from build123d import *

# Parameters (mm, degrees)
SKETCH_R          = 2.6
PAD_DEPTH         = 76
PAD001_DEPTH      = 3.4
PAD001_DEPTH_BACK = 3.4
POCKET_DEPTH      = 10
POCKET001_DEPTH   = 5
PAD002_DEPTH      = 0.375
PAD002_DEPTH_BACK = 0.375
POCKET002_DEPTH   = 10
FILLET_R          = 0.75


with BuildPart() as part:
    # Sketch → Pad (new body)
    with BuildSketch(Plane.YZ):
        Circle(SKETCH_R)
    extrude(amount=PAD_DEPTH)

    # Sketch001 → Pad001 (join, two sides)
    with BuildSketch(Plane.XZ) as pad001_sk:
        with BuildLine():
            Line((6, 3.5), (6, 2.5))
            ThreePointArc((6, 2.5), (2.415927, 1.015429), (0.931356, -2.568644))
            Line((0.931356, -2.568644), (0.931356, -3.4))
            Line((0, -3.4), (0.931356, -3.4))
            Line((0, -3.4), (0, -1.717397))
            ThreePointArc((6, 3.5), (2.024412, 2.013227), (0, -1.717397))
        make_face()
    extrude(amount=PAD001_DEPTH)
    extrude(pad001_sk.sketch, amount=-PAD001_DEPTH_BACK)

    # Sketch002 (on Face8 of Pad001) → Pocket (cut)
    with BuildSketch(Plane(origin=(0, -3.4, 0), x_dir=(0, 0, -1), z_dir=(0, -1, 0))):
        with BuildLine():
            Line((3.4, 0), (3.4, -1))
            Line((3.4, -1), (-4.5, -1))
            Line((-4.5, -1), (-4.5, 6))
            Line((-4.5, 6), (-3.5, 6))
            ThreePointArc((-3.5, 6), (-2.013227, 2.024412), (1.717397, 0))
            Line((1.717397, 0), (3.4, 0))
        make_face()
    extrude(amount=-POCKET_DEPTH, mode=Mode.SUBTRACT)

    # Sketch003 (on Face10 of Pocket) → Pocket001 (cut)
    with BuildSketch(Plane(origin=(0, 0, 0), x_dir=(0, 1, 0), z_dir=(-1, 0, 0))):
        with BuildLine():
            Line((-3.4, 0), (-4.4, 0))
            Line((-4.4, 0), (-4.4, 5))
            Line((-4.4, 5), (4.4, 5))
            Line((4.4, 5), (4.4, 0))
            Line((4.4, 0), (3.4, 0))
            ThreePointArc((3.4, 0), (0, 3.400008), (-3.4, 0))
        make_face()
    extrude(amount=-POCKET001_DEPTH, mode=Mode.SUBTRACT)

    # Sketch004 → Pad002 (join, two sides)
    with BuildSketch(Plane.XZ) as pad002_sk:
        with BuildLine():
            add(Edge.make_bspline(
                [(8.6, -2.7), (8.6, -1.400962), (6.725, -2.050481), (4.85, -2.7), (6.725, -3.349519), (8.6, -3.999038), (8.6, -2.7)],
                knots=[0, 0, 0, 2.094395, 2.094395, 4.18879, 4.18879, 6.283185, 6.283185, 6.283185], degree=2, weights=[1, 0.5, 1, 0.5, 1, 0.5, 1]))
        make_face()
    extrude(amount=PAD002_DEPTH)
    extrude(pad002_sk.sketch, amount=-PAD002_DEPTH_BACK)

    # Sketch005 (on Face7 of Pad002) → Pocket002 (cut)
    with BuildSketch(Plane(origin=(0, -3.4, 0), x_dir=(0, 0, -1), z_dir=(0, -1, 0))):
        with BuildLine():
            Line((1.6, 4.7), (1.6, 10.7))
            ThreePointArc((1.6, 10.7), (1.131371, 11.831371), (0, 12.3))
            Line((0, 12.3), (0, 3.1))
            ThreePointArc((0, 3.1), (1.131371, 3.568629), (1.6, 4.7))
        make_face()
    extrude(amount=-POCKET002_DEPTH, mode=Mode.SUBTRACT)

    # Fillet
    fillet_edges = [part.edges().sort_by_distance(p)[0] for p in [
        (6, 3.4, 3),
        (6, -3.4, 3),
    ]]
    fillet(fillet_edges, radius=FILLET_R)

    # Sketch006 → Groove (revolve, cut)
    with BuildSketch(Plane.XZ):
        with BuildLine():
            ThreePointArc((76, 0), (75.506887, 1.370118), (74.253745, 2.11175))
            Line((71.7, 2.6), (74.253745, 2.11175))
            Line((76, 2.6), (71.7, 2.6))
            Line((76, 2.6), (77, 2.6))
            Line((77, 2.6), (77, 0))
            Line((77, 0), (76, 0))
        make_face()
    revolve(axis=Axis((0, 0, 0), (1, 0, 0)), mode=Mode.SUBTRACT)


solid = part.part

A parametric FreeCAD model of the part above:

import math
import FreeCAD as App
import Part
import Sketcher

V = App.Vector
Q = App.Units.Quantity


def edges_at(feature, points):
    """Names of the edges that pass closest to the given points."""
    edges = feature.Shape.Edges
    near = lambda p: min(range(len(edges)), key=lambda i: edges[i].distToShape(Part.Vertex(*p))[0])
    return sorted({f"Edge{near(p) + 1}" for p in points})

doc = App.newDocument("Part")
body = doc.addObject("PartDesign::Body", "Body")

sketch1 = body.newObject("Sketcher::SketchObject", "Sketch")
sketch1.AttachmentSupport = (doc.getObject("YZ_Plane"), [""])
sketch1.MapMode = "FlatFace"
sketch1.addGeometry(Part.Circle(V(0, 0, 0), V(0, 0, 1), 2.6), False)
sketch1.addConstraint(Sketcher.Constraint("Coincident", 0, 3, -1, 1))
sketch1.addConstraint(Sketcher.Constraint("Diameter", 0, Q("5.2 mm")))
pad1 = body.newObject("PartDesign::Pad", "Pad")
pad1.Profile = sketch1
pad1.Length = 76

sketch2 = body.newObject("Sketcher::SketchObject", "Sketch001")
sketch2.AttachmentSupport = (doc.getObject("XZ_Plane"), [""])
sketch2.MapMode = "FlatFace"
sketch2.addGeometry(Part.LineSegment(V(6, 2.5, 0), V(6, 3.5, 0)), False)
sketch2.addGeometry(Part.ArcOfCircle(Part.Circle(V(6.000003, -2.558698, 0), V(0, 0, 1), 6.058698), math.radians(90.000028), math.radians(172.018207)), False)
sketch2.addGeometry(Part.LineSegment(V(0, -1.717397, 0), V(0, -3.4, 0)), False)
sketch2.addGeometry(Part.LineSegment(V(0, -3.4, 0), V(0.931356, -3.4, 0)), False)
sketch2.addGeometry(Part.LineSegment(V(0.931356, -3.4, 0), V(0.931356, -2.568644, 0)), False)
sketch2.addGeometry(Part.ArcOfCircle(Part.Circle(V(5.999998, -2.568642, 0), V(0, 0, 1), 5.068642), math.radians(89.999982), math.radians(180.000018)), False)
sketch2.addConstraint(Sketcher.Constraint("Coincident", 0, 2, 1, 1))
sketch2.addConstraint(Sketcher.Constraint("Coincident", 1, 2, 2, 1))
sketch2.addConstraint(Sketcher.Constraint("Coincident", 2, 2, 3, 1))
sketch2.addConstraint(Sketcher.Constraint("Coincident", 3, 2, 4, 1))
sketch2.addConstraint(Sketcher.Constraint("Tangent", 4, 2, 5, 2))
sketch2.addConstraint(Sketcher.Constraint("Coincident", 5, 1, 0, 1))
sketch2.addConstraint(Sketcher.Constraint("Vertical", 0))
sketch2.addConstraint(Sketcher.Constraint("Vertical", 2))
sketch2.addConstraint(Sketcher.Constraint("Horizontal", 3))
sketch2.addConstraint(Sketcher.Constraint("Vertical", 4))
sketch2.addConstraint(Sketcher.Constraint("PointOnObject", 1, 2, -2))
sketch2.addConstraint(Sketcher.Constraint("Vertical", 5, 3, 0, 2))
sketch2.addConstraint(Sketcher.Constraint("DistanceY", 0, 1, 0, 2, Q("1 mm")))
sketch2.addConstraint(Sketcher.Constraint("DistanceX", -1, 1, 5, 3, Q("5.999998 mm")))
sketch2.addConstraint(Sketcher.Constraint("DistanceY", -1, 1, 0, 2, Q("3.5 mm")))
sketch2.addConstraint(Sketcher.Constraint("DistanceY", 2, 2, -1, 1, Q("3.4 mm")))
sketch2.addConstraint(Sketcher.Constraint("Radius", 1, Q("6.058698 mm")))
sketch2.addConstraint(Sketcher.Constraint("Radius", 5, Q("5.068642 mm")))
sketch2.addConstraint(Sketcher.Constraint("DistanceY", 1, 3, 1, 2, Q("0.841301 mm")))
pad2 = body.newObject("PartDesign::Pad", "Pad001")
pad2.Profile = sketch2
pad2.Type = "TwoLengths"
pad2.Length = 3.4
pad2.Length2 = 3.4

sketch3 = body.newObject("Sketcher::SketchObject", "Sketch002")
sketch3.AttachmentSupport = (doc.getObject("XZ_Plane"), [""])
sketch3.MapMode = "FlatFace"
sketch3.AttachmentOffset = App.Placement(V(0, 0, 3.4), App.Rotation())
sketch3.addGeometry(Part.LineSegment(V(-1, -3.4, 0), V(0, -3.4, 0)), False)
sketch3.addGeometry(Part.LineSegment(V(0, -3.4, 0), V(0, -1.717397, 0)), False)
sketch3.addGeometry(Part.ArcOfCircle(Part.Circle(V(6.000003, -2.558698, 0), V(0, 0, 1), 6.058698), math.radians(90.000028), math.radians(172.018207)), False)
sketch3.addGeometry(Part.LineSegment(V(6, 3.5, 0), V(6, 4.5, 0)), False)
sketch3.addGeometry(Part.LineSegment(V(6, 4.5, 0), V(-1, 4.5, 0)), False)
sketch3.addGeometry(Part.LineSegment(V(-1, 4.5, 0), V(-1, -3.4, 0)), False)
sketch3.addConstraint(Sketcher.Constraint("Coincident", 0, 2, 1, 1))
sketch3.addConstraint(Sketcher.Constraint("Coincident", 1, 2, 2, 2))
sketch3.addConstraint(Sketcher.Constraint("Coincident", 2, 1, 3, 1))
sketch3.addConstraint(Sketcher.Constraint("Coincident", 3, 2, 4, 1))
sketch3.addConstraint(Sketcher.Constraint("Coincident", 4, 2, 5, 1))
sketch3.addConstraint(Sketcher.Constraint("Coincident", 5, 2, 0, 1))
sketch3.addConstraint(Sketcher.Constraint("Horizontal", 0))
sketch3.addConstraint(Sketcher.Constraint("Vertical", 1))
sketch3.addConstraint(Sketcher.Constraint("Vertical", 3))
sketch3.addConstraint(Sketcher.Constraint("Horizontal", 4))
sketch3.addConstraint(Sketcher.Constraint("Vertical", 5))
sketch3.addConstraint(Sketcher.Constraint("PointOnObject", 0, 2, -2))
sketch3.addConstraint(Sketcher.Constraint("Equal", 0, 3))
sketch3.addConstraint(Sketcher.Constraint("DistanceX", 0, 1, 0, 2, Q("1 mm")))
sketch3.addConstraint(Sketcher.Constraint("DistanceX", 4, 2, 4, 1, Q("7 mm")))
sketch3.addConstraint(Sketcher.Constraint("DistanceY", 5, 2, 5, 1, Q("7.9 mm")))
sketch3.addConstraint(Sketcher.Constraint("DistanceY", 0, 2, -1, 1, Q("3.4 mm")))
sketch3.addConstraint(Sketcher.Constraint("Radius", 2, Q("6.058698 mm")))
sketch3.addConstraint(Sketcher.Constraint("DistanceY", 2, 3, 1, 2, Q("0.841301 mm")))
pocket1 = body.newObject("PartDesign::Pocket", "Pocket")
pocket1.Profile = sketch3
pocket1.Length = 10

sketch4 = body.newObject("Sketcher::SketchObject", "Sketch003")
sketch4.AttachmentSupport = (doc.getObject("YZ_Plane"), [""])
sketch4.MapMode = "FlatFace"
sketch4.addGeometry(Part.LineSegment(V(-4.4, 0, 0), V(-3.4, 0, 0)), False)
sketch4.addGeometry(Part.ArcOfCircle(Part.Circle(V(0, -0.000008, 0), V(0, 0, 1), 3.4), math.radians(179.999865), math.radians(360.000135)), False)
sketch4.addGeometry(Part.LineSegment(V(3.4, 0, 0), V(4.4, 0, 0)), False)
sketch4.addGeometry(Part.LineSegment(V(4.4, 0, 0), V(4.4, -5, 0)), False)
sketch4.addGeometry(Part.LineSegment(V(4.4, -5, 0), V(-4.4, -5, 0)), False)
sketch4.addGeometry(Part.LineSegment(V(-4.4, -5, 0), V(-4.4, 0, 0)), False)
sketch4.addConstraint(Sketcher.Constraint("Coincident", 0, 2, 1, 1))
sketch4.addConstraint(Sketcher.Constraint("Coincident", 1, 2, 2, 1))
sketch4.addConstraint(Sketcher.Constraint("Coincident", 2, 2, 3, 1))
sketch4.addConstraint(Sketcher.Constraint("Coincident", 3, 2, 4, 1))
sketch4.addConstraint(Sketcher.Constraint("Coincident", 4, 2, 5, 1))
sketch4.addConstraint(Sketcher.Constraint("Coincident", 5, 2, 0, 1))
sketch4.addConstraint(Sketcher.Constraint("Horizontal", 0))
sketch4.addConstraint(Sketcher.Constraint("Horizontal", 2))
sketch4.addConstraint(Sketcher.Constraint("Vertical", 3))
sketch4.addConstraint(Sketcher.Constraint("Horizontal", 4))
sketch4.addConstraint(Sketcher.Constraint("Vertical", 5))
sketch4.addConstraint(Sketcher.Constraint("Coincident", 1, 3, -1, 1))
sketch4.addConstraint(Sketcher.Constraint("Symmetric", 2, 2, 5, 2, -1, 1))
sketch4.addConstraint(Sketcher.Constraint("PointOnObject", 0, 2, -1))
sketch4.addConstraint(Sketcher.Constraint("Radius", 1, Q("3.4 mm")))
sketch4.addConstraint(Sketcher.Constraint("DistanceX", 0, 1, 0, 2, Q("1 mm")))
sketch4.addConstraint(Sketcher.Constraint("DistanceY", 3, 2, 3, 1, Q("5 mm")))
pocket2 = body.newObject("PartDesign::Pocket", "Pocket001")
pocket2.Profile = sketch4
pocket2.Length = 5
pocket2.Reversed = True

sketch5 = body.newObject("Sketcher::SketchObject", "Sketch004")
sketch5.AttachmentSupport = (doc.getObject("XZ_Plane"), [""])
sketch5.MapMode = "FlatFace"
sketch5.addGeometry(Part.BSplineCurve([V(8.6, -2.7, 0), V(8.6, -1.400962, 0), V(6.725, -2.050481, 0), V(4.85, -2.7, 0), V(6.725, -3.349519, 0), V(8.6, -3.999038, 0), V(8.6, -2.7, 0)], [3, 2, 2, 3], [0, 2.094395, 4.18879, 6.283185], False, 2, [1, 0.5, 1, 0.5, 1, 0.5, 1], False), False)
sketch5.addConstraint(Sketcher.Constraint("Block", 0))
pad3 = body.newObject("PartDesign::Pad", "Pad002")
pad3.Profile = sketch5
pad3.Type = "TwoLengths"
pad3.Length = 0.375
pad3.Length2 = 0.375

sketch6 = body.newObject("Sketcher::SketchObject", "Sketch005")
sketch6.AttachmentSupport = (doc.getObject("XZ_Plane"), [""])
sketch6.MapMode = "FlatFace"
sketch6.AttachmentOffset = App.Placement(V(0, 0, 3.4), App.Rotation())
sketch6.addGeometry(Part.LineSegment(V(4.7, -1.6, 0), V(10.7, -1.6, 0)), False)
sketch6.addGeometry(Part.ArcOfCircle(Part.Circle(V(10.700001, -0.000001, 0), V(0, 0, 1), 1.599999), math.radians(-90.000018), math.radians(0.000018)), False)
sketch6.addGeometry(Part.LineSegment(V(12.3, 0, 0), V(3.1, 0, 0)), False)
sketch6.addGeometry(Part.ArcOfCircle(Part.Circle(V(4.699999, -0.000001, 0), V(0, 0, 1), 1.599999), math.radians(179.999982), math.radians(270.000018)), False)
sketch6.addConstraint(Sketcher.Constraint("Tangent", 0, 2, 1, 1))
sketch6.addConstraint(Sketcher.Constraint("Coincident", 1, 2, 2, 1))
sketch6.addConstraint(Sketcher.Constraint("Coincident", 2, 2, 3, 1))
sketch6.addConstraint(Sketcher.Constraint("Tangent", 3, 2, 0, 1))
sketch6.addConstraint(Sketcher.Constraint("Horizontal", 0))
sketch6.addConstraint(Sketcher.Constraint("Horizontal", 2))
sketch6.addConstraint(Sketcher.Constraint("Equal", 1, 3))
sketch6.addConstraint(Sketcher.Constraint("PointOnObject", 1, 3, -1))
sketch6.addConstraint(Sketcher.Constraint("PointOnObject", 1, 2, -1))
sketch6.addConstraint(Sketcher.Constraint("Radius", 1, Q("1.599999 mm")))
sketch6.addConstraint(Sketcher.Constraint("DistanceX", 0, 1, 0, 2, Q("6 mm")))
sketch6.addConstraint(Sketcher.Constraint("DistanceX", -1, 1, 1, 3, Q("10.700001 mm")))
pocket3 = body.newObject("PartDesign::Pocket", "Pocket002")
pocket3.Profile = sketch6
pocket3.Length = 10
doc.recompute()

fillet = body.newObject("PartDesign::Fillet", "Fillet")
fillet.Base = (pocket3, edges_at(pocket3, [(6, 3.4, 3), (6, -3.4, 3)]))
fillet.Radius = 0.75

sketch7 = body.newObject("Sketcher::SketchObject", "Sketch006")
sketch7.AttachmentSupport = (doc.getObject("XZ_Plane"), [""])
sketch7.MapMode = "FlatFace"
sketch7.addGeometry(Part.ArcOfCircle(Part.Circle(V(73.849999, -0.000001, 0), V(0, 0, 1), 2.150001), math.radians(0.000027), math.radians(79.17624)), False)
sketch7.addGeometry(Part.LineSegment(V(76, 0, 0), V(77, 0, 0)), False)
sketch7.addGeometry(Part.LineSegment(V(77, 0, 0), V(77, 2.6, 0)), False)
sketch7.addGeometry(Part.LineSegment(V(77, 2.6, 0), V(71.7, 2.6, 0)), False)
sketch7.addGeometry(Part.LineSegment(V(71.7, 2.6, 0), V(74.253745, 2.11175, 0)), False)
sketch7.addConstraint(Sketcher.Constraint("Coincident", 0, 1, 1, 1))
sketch7.addConstraint(Sketcher.Constraint("Coincident", 1, 2, 2, 1))
sketch7.addConstraint(Sketcher.Constraint("Coincident", 2, 2, 3, 1))
sketch7.addConstraint(Sketcher.Constraint("Coincident", 3, 2, 4, 1))
sketch7.addConstraint(Sketcher.Constraint("Tangent", 4, 2, 0, 2))
sketch7.addConstraint(Sketcher.Constraint("Horizontal", 1))
sketch7.addConstraint(Sketcher.Constraint("Vertical", 2))
sketch7.addConstraint(Sketcher.Constraint("Horizontal", 3))
sketch7.addConstraint(Sketcher.Constraint("PointOnObject", 0, 3, -1))
sketch7.addConstraint(Sketcher.Constraint("PointOnObject", 0, 1, -1))
sketch7.addConstraint(Sketcher.Constraint("DistanceX", 1, 1, 1, 2, Q("1 mm")))
sketch7.addConstraint(Sketcher.Constraint("Radius", 0, Q("2.150001 mm")))
sketch7.addConstraint(Sketcher.Constraint("DistanceX", 3, 2, 3, 1, Q("5.3 mm")))
sketch7.addConstraint(Sketcher.Constraint("DistanceY", 2, 1, 2, 2, Q("2.6 mm")))
sketch7.addConstraint(Sketcher.Constraint("DistanceX", -1, 1, 0, 1, Q("76 mm")))
groove = body.newObject("PartDesign::Groove", "Groove")
groove.Profile = sketch7
groove.ReferenceAxis = (sketch7, ["H_Axis"])
groove.Angle = 360

doc.recompute()
